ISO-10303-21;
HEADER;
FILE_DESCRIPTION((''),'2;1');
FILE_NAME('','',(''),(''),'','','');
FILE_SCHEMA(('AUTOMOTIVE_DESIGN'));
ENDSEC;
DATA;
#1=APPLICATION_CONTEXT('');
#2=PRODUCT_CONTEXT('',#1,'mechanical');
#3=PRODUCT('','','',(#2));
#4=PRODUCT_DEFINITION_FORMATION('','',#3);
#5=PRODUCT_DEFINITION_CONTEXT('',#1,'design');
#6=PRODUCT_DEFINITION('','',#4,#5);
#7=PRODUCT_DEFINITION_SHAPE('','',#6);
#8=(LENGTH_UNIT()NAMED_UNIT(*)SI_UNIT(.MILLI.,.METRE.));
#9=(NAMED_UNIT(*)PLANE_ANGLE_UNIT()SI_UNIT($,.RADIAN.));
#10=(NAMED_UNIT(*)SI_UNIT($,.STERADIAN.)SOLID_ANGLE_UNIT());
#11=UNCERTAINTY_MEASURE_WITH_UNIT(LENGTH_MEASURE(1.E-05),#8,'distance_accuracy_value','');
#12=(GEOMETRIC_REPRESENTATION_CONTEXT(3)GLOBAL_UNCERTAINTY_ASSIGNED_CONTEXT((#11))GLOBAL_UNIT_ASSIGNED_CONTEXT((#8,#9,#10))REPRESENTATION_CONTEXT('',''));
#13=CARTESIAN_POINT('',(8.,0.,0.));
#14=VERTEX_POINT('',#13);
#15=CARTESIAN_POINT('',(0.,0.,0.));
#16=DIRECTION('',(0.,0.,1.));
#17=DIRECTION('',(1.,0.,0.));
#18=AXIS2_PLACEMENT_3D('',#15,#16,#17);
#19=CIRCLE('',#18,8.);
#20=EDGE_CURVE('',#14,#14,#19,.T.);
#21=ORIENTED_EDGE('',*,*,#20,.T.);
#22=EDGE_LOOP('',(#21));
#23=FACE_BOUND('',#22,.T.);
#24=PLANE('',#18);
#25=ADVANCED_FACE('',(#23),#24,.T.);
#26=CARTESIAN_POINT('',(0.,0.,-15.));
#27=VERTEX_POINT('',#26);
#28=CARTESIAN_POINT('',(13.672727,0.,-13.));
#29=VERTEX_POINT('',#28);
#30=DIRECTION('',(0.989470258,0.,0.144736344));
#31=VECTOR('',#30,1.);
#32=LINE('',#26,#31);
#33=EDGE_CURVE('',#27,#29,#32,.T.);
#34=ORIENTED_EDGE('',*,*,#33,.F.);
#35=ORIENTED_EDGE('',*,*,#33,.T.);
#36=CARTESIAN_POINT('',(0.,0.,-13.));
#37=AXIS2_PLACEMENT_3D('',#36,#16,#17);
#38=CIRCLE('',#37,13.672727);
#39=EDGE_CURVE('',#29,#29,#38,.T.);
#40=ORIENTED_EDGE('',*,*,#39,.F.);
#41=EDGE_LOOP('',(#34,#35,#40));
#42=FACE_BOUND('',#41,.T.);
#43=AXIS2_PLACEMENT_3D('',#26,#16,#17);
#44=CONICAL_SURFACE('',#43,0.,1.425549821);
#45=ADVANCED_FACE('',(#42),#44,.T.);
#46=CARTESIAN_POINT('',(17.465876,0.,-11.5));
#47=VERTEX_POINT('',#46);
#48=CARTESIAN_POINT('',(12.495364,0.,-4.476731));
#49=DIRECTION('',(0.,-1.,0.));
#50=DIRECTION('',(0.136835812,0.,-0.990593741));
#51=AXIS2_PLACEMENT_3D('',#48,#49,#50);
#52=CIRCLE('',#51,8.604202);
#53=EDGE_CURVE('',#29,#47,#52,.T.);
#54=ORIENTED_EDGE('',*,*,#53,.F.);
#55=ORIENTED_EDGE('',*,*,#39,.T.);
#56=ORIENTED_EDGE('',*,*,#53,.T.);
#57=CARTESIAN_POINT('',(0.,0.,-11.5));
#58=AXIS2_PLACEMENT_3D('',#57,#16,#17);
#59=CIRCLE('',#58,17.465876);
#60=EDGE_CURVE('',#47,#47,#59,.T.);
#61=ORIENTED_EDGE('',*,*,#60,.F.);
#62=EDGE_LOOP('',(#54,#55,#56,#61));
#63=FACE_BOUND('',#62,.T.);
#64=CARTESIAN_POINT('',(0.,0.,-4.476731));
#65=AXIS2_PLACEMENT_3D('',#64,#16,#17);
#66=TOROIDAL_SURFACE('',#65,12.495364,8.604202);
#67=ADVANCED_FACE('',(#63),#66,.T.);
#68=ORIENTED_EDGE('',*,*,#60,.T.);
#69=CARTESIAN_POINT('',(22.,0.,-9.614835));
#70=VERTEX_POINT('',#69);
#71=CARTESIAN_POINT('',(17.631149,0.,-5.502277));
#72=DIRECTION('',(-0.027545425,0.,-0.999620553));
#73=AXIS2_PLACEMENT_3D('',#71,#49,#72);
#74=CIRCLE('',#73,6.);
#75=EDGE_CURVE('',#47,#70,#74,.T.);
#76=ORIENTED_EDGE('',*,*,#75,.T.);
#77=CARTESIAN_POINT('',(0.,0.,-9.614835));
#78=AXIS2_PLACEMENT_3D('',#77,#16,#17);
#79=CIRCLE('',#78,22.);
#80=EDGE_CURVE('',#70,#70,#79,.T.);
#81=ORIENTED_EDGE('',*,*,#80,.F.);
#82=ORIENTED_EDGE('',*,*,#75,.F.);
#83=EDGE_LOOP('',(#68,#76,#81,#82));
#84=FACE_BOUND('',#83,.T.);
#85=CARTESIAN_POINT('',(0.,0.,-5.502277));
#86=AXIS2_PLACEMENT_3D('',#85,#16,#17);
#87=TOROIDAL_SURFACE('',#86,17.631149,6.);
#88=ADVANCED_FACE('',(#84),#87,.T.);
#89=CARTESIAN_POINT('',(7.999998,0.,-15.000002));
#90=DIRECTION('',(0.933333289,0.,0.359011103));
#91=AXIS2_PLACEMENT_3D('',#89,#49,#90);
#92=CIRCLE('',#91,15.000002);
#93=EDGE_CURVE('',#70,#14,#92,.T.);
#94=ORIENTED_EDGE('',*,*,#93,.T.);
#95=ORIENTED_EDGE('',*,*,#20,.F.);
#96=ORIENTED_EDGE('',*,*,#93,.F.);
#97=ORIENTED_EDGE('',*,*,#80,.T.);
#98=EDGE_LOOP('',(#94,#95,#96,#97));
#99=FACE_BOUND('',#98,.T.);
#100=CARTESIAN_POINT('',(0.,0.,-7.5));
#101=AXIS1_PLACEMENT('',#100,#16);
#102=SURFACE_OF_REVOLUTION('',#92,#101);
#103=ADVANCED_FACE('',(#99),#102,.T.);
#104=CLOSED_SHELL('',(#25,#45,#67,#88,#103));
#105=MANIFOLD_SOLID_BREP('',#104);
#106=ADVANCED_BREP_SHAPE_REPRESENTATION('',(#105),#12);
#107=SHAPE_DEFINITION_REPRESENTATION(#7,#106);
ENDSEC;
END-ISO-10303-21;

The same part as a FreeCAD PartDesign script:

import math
import FreeCAD as App
import Part
import Sketcher

V = App.Vector

doc = App.newDocument("Part")
params = doc.addObject("Spreadsheet::Sheet", "Params")
for row, (alias, value) in enumerate([
    ("sketch1_radius", "6 mm"),
    ("sketch1_width", "8 mm"),
    ("sketch1_height", "15 mm"),
    ("revolution_angle", "360 deg"),
], start=1):
    params.set(f"A{row}", alias)
    params.set(f"B{row}", "=" + value)
    params.setAlias(f"B{row}", alias)

body = doc.addObject("PartDesign::Body", "Body")

# Sketch on XZ plane
sketch1 = doc.addObject("Sketcher::SketchObject", "Sketch")
body.addObject(sketch1)
sketch1.AttachmentSupport = (doc.XZ_Plane, [""])
sketch1.MapMode = "FlatFace"
sketch1.addGeometry(Part.LineSegment(V(8, 0, 0), V(0, 0, 0)), False)
sketch1.addGeometry(Part.LineSegment(V(0, 0, 0), V(0, -15, 0)), False)
sketch1.addGeometry(Part.LineSegment(V(0, -15, 0), V(13.672727, -13, 0)), False)
sketch1.addGeometry(Part.ArcOfCircle(Part.Circle(V(12.495364, -4.476731, 0), V(0, 0, 1), 8.604202), math.radians(-82.135211), math.radians(-54.71217)), False)
sketch1.addGeometry(Part.ArcOfCircle(Part.Circle(V(17.631149, -5.502277, 0), V(0, 0, 1), 6), math.radians(-91.578436), math.radians(-43.269148)), False)
sketch1.addGeometry(Part.ArcOfCircle(Part.Circle(V(7.999998, -15.000002, 0), V(0, 0, 1), 15.000002), math.radians(21.039477), math.radians(89.999994)), False)
sketch1.addConstraint(Sketcher.Constraint("Coincident", 0, 2, 1, 1))
sketch1.addConstraint(Sketcher.Constraint("Coincident", 1, 2, 2, 1))
sketch1.addConstraint(Sketcher.Constraint("Coincident", 2, 2, 3, 1))
sketch1.addConstraint(Sketcher.Constraint("Coincident", 3, 2, 4, 1))
sketch1.addConstraint(Sketcher.Constraint("Coincident", 4, 2, 5, 1))
sketch1.addConstraint(Sketcher.Constraint("Tangent", 5, 2, 0, 1))
sketch1.addConstraint(Sketcher.Constraint("Horizontal", 0))
sketch1.addConstraint(Sketcher.Constraint("Vertical", 1))
sketch1.addConstraint(Sketcher.Constraint("Coincident", 0, 2, -1, 1))
sketch1.addConstraint(Sketcher.Constraint("Radius", 4, 6.0))
sketch1.addConstraint(Sketcher.Constraint("DistanceX", 0, 2, 0, 1, 8.0))
sketch1.addConstraint(Sketcher.Constraint("DistanceY", 1, 2, 1, 1, 15.0))
sketch1.addConstraint(Sketcher.Constraint("DistanceY", 2, 2, -1, 1, 13.0))
sketch1.addConstraint(Sketcher.Constraint("DistanceX", -1, 1, 4, 2, 22.0))
sketch1.addConstraint(Sketcher.Constraint("DistanceY", 3, 2, -1, 1, 11.5))
sketch1.addConstraint(Sketcher.Constraint("Radius", 3, 8.604202))
sketch1.addConstraint(Sketcher.Constraint("Radius", 5, 15.000002))
sketch1.addConstraint(Sketcher.Constraint("Distance", 2, 13.818229))
sketch1.addConstraint(Sketcher.Constraint("DistanceY", 3, 3, -1, 1, 4.476731))
sketch1.setExpression("Constraints[9]", "Params.sketch1_radius")
sketch1.setExpression("Constraints[10]", "Params.sketch1_width")
sketch1.setExpression("Constraints[11]", "Params.sketch1_height")
revolution = doc.addObject("PartDesign::Revolution", "Revolution")
body.addObject(revolution)
revolution.Profile = sketch1
revolution.ReferenceAxis = (sketch1, ["V_Axis"])
revolution.setExpression("Angle", "Params.revolution_angle")

doc.recompute()
